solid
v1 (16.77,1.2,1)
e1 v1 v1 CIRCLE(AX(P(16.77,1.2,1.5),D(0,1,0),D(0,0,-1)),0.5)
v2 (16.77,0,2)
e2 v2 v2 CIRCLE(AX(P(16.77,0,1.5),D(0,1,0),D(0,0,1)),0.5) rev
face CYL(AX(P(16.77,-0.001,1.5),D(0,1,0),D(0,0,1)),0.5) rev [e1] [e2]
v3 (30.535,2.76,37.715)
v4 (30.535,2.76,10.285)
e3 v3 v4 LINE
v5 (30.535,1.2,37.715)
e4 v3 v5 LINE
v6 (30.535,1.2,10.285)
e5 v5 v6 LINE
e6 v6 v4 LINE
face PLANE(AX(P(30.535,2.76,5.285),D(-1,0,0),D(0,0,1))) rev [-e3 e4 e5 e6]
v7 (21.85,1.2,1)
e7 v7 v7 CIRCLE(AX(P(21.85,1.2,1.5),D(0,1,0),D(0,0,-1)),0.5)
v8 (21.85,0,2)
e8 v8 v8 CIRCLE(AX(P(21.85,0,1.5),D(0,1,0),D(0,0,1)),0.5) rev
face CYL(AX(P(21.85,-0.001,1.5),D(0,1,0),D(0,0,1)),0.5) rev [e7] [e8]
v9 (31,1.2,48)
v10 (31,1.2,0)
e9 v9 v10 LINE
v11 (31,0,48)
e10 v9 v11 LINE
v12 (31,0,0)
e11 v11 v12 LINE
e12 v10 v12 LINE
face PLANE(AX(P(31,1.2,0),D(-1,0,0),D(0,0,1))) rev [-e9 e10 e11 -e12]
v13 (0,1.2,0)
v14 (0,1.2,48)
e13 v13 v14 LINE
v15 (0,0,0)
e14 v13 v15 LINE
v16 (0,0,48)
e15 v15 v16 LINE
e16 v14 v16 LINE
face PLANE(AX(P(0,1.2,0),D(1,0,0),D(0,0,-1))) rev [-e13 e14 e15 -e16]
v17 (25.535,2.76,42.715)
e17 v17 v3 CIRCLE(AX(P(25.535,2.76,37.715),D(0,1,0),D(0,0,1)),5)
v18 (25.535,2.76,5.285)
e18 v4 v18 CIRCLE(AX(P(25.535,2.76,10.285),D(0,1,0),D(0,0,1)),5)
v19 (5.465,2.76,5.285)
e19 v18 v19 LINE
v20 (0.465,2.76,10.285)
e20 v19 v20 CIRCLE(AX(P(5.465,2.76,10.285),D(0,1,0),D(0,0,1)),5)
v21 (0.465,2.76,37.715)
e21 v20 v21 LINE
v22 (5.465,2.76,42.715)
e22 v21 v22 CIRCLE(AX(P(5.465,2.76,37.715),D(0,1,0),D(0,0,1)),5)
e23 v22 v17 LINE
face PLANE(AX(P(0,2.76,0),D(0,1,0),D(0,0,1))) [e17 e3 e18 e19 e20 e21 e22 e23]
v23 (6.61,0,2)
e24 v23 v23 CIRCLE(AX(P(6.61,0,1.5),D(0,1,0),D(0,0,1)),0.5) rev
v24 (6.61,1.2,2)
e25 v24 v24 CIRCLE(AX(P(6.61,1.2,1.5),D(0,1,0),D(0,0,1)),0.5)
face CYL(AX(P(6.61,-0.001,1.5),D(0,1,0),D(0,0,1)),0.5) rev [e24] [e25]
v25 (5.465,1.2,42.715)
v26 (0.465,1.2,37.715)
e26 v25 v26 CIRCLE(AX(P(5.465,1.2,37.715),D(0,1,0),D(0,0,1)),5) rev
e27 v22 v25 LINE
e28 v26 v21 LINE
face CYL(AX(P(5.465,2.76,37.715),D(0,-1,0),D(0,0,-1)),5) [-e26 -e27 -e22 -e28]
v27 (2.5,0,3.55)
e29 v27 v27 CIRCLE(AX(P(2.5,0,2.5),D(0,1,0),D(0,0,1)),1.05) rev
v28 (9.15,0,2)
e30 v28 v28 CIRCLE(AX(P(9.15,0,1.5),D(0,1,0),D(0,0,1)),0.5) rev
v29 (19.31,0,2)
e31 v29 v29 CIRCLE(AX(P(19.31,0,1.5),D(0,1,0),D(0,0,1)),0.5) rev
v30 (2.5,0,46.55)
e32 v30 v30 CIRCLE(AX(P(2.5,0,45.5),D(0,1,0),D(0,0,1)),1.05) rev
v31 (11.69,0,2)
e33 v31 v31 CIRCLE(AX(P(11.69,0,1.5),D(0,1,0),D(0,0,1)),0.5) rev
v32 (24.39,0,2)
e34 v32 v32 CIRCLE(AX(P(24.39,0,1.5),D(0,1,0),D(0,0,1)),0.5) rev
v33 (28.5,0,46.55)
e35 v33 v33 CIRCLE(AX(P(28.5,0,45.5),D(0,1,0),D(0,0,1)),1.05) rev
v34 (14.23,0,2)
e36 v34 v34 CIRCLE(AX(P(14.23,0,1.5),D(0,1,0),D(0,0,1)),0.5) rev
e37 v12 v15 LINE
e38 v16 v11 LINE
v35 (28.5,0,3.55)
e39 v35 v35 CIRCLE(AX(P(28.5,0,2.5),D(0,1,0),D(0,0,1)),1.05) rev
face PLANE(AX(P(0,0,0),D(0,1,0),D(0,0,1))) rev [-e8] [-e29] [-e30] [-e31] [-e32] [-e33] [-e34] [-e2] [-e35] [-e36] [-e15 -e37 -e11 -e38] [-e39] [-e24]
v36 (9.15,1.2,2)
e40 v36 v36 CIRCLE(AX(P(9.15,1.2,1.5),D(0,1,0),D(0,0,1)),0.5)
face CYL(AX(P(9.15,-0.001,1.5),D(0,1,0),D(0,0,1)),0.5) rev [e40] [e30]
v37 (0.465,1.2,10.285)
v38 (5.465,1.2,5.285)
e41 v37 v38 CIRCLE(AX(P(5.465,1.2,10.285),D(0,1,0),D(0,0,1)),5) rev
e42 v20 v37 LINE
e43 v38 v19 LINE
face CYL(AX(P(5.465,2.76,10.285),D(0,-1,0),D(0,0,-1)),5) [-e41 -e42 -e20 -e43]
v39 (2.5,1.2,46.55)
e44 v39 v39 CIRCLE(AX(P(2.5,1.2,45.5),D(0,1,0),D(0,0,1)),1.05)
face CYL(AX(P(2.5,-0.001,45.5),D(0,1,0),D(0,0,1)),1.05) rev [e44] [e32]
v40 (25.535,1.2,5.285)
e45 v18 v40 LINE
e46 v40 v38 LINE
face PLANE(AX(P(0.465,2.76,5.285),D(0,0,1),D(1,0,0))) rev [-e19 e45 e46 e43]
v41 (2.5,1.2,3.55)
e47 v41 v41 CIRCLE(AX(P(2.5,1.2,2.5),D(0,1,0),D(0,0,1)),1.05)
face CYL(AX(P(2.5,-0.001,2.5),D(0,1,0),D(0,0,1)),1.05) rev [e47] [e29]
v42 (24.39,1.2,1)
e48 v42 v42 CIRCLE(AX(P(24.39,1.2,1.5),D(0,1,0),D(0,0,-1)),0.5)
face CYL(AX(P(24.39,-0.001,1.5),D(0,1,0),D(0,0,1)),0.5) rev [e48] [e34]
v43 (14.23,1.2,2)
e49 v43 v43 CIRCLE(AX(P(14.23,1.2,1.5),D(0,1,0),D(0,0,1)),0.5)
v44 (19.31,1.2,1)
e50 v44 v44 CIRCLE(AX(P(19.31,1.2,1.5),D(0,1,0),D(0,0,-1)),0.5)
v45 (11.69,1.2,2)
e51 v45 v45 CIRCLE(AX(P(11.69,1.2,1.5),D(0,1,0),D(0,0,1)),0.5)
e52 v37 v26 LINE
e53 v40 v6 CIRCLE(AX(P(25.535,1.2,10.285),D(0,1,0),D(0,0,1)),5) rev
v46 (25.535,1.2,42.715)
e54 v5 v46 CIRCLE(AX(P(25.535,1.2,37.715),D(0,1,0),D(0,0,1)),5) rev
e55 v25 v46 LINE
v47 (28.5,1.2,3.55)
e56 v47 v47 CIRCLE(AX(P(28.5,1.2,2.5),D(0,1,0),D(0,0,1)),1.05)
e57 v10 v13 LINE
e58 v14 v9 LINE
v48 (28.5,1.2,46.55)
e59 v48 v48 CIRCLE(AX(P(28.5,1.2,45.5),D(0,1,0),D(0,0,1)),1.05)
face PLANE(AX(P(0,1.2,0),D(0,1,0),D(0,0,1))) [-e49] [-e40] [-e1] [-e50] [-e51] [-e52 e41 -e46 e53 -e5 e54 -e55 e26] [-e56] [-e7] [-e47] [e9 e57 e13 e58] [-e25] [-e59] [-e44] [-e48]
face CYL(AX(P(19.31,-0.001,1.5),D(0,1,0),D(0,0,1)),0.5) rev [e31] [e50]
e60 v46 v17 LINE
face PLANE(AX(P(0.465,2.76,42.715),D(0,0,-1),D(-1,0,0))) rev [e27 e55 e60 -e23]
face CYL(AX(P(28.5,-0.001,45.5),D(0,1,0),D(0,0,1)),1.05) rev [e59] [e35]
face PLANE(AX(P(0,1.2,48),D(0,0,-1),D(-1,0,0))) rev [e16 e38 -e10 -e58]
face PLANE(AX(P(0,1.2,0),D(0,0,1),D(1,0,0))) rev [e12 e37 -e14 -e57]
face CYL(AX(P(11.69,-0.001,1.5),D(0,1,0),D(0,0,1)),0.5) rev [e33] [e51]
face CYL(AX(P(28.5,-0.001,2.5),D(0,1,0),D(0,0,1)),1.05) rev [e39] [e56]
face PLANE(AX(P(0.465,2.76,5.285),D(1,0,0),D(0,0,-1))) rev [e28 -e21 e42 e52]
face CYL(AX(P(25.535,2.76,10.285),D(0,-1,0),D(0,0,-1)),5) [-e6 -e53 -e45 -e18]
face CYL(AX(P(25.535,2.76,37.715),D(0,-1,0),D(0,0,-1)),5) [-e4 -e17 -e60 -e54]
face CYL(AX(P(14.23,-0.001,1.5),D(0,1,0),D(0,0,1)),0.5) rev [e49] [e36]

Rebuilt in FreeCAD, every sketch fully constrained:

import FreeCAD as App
import Part
import Sketcher
from FreeCAD import Vector


def edges_at(feature, points):
    """Names of the edges that pass closest to the given points."""
    edges = feature.Shape.Edges
    near = lambda p: min(range(len(edges)), key=lambda i: edges[i].distToShape(Part.Vertex(*p))[0])
    return sorted({f"Edge{near(p) + 1}" for p in points})

doc = App.newDocument("Part")
params = doc.addObject("Spreadsheet::Sheet", "Params")
for row, (alias, value) in enumerate([
    ("sketch1_width", "31 mm"),
    ("sketch1_height", "48 mm"),
    ("pad1_length", "1.2 mm"),
    ("sketch2_diameter", "2.1 mm"),
    ("sketch3_diameter", "2.1 mm"),
    ("sketch4_diameter", "2.1 mm"),
    ("sketch5_diameter", "2.1 mm"),
    ("sketch6_diameter", "1 mm"),
    ("sketch7_diameter", "1 mm"),
    ("sketch8_diameter", "1 mm"),
    ("sketch9_diameter", "1 mm"),
    ("sketch10_diameter", "1 mm"),
    ("sketch11_diameter", "1 mm"),
    ("sketch12_diameter", "1 mm"),
    ("sketch13_diameter", "1 mm"),
    ("sketch14_width", "30.07 mm"),
    ("sketch14_height", "37.43 mm"),
    ("pad2_length", "1.56 mm"),
    ("fillet_radius", "5 mm"),
], start=1):
    params.set(f"A{row}", alias)
    params.set(f"B{row}", "=" + value)
    params.setAlias(f"B{row}", alias)

body = doc.addObject("PartDesign::Body", "Body")

# Sketch on XZ plane
sketch1 = body.newObject("Sketcher::SketchObject", "Sketch")
sketch1.AttachmentSupport = (doc.getObject("XZ_Plane"), [""])
sketch1.MapMode = "FlatFace"
sketch1.addGeometry([
    Part.LineSegment(Vector(0, 0, 0), Vector(0, 48, 0)),
    Part.LineSegment(Vector(0, 48, 0), Vector(31, 48, 0)),
    Part.LineSegment(Vector(31, 48, 0), Vector(31, 0, 0)),
    Part.LineSegment(Vector(31, 0, 0), Vector(0, 0, 0)),
], False)
sketch1.addConstraint([
    Sketcher.Constraint("Coincident", 0, 2, 1, 1),
    Sketcher.Constraint("Coincident", 1, 2, 2, 1),
    Sketcher.Constraint("Coincident", 2, 2, 3, 1),
    Sketcher.Constraint("Coincident", 3, 2, 0, 1),
    Sketcher.Constraint("Vertical", 0),
    Sketcher.Constraint("Horizontal", 1),
    Sketcher.Constraint("Vertical", 2),
    Sketcher.Constraint("Horizontal", 3),
    Sketcher.Constraint("Coincident", 3, 2, -1, 1),
    Sketcher.Constraint("DistanceX", 1, 1, 1, 2, 31.0),
    Sketcher.Constraint("DistanceY", 0, 1, 0, 2, 48.0),
])
sketch1.setExpression("Constraints[9]", "Params.sketch1_width")
sketch1.setExpression("Constraints[10]", "Params.sketch1_height")
pad1 = body.newObject("PartDesign::Pad", "Pad")
pad1.Profile = sketch1
pad1.setExpression("Length", "Params.pad1_length")
pad1.Reversed = True

# Sketch on XZ plane
sketch2 = body.newObject("Sketcher::SketchObject", "Sketch001")
sketch2.AttachmentSupport = (doc.getObject("XZ_Plane"), [""])
sketch2.MapMode = "FlatFace"
sketch2.AttachmentOffset = App.Placement(Vector(0, 0, -1.2), App.Rotation())
sketch2.addGeometry(Part.Circle(Vector(2.5, 2.5, 0), Vector(0, 0, 1), 1.05), False)
sketch2.addConstraint([
    Sketcher.Constraint("Diameter", 0, 2.1),
    Sketcher.Constraint("DistanceX", -1, 1, 0, 3, 2.5),
    Sketcher.Constraint("DistanceY", -1, 1, 0, 3, 2.5),
])
sketch2.setExpression("Constraints[0]", "Params.sketch2_diameter")
pocket1 = body.newObject("PartDesign::Pocket", "Pocket")
pocket1.Profile = sketch2
pocket1.Type = "UpToFirst"
pocket1.Reversed = True

# Sketch on XZ plane
sketch3 = body.newObject("Sketcher::SketchObject", "Sketch002")
sketch3.AttachmentSupport = (doc.getObject("XZ_Plane"), [""])
sketch3.MapMode = "FlatFace"
sketch3.AttachmentOffset = App.Placement(Vector(0, 0, -1.2), App.Rotation())
sketch3.addGeometry(Part.Circle(Vector(28.5, 2.5, 0), Vector(0, 0, 1), 1.05), False)
sketch3.addConstraint([
    Sketcher.Constraint("Diameter", 0, 2.1),
    Sketcher.Constraint("DistanceX", -1, 1, 0, 3, 28.5),
    Sketcher.Constraint("DistanceY", -1, 1, 0, 3, 2.5),
])
sketch3.setExpression("Constraints[0]", "Params.sketch3_diameter")
pocket2 = body.newObject("PartDesign::Pocket", "Pocket001")
pocket2.Profile = sketch3
pocket2.Type = "UpToFirst"
pocket2.Reversed = True

# Sketch on XZ plane
sketch4 = body.newObject("Sketcher::SketchObject", "Sketch003")
sketch4.AttachmentSupport = (doc.getObject("XZ_Plane"), [""])
sketch4.MapMode = "FlatFace"
sketch4.AttachmentOffset = App.Placement(Vector(0, 0, -1.2), App.Rotation())
sketch4.addGeometry(Part.Circle(Vector(2.5, 45.5, 0), Vector(0, 0, 1), 1.05), False)
sketch4.addConstraint([
    Sketcher.Constraint("Diameter", 0, 2.1),
    Sketcher.Constraint("DistanceX", -1, 1, 0, 3, 2.5),
    Sketcher.Constraint("DistanceY", -1, 1, 0, 3, 45.5),
])
sketch4.setExpression("Constraints[0]", "Params.sketch4_diameter")
pocket3 = body.newObject("PartDesign::Pocket", "Pocket002")
pocket3.Profile = sketch4
pocket3.Type = "UpToFirst"
pocket3.Reversed = True

# Sketch on XZ plane
sketch5 = body.newObject("Sketcher::SketchObject", "Sketch004")
sketch5.AttachmentSupport = (doc.getObject("XZ_Plane"), [""])
sketch5.MapMode = "FlatFace"
sketch5.AttachmentOffset = App.Placement(Vector(0, 0, -1.2), App.Rotation())
sketch5.addGeometry(Part.Circle(Vector(28.5, 45.5, 0), Vector(0, 0, 1), 1.05), False)
sketch5.addConstraint([
    Sketcher.Constraint("Diameter", 0, 2.1),
    Sketcher.Constraint("DistanceX", -1, 1, 0, 3, 28.5),
    Sketcher.Constraint("DistanceY", -1, 1, 0, 3, 45.5),
])
sketch5.setExpression("Constraints[0]", "Params.sketch5_diameter")
pocket4 = body.newObject("PartDesign::Pocket", "Pocket003")
pocket4.Profile = sketch5
pocket4.Type = "UpToFirst"
pocket4.Reversed = True

# Sketch on XZ plane
sketch6 = body.newObject("Sketcher::SketchObject", "Sketch005")
sketch6.AttachmentSupport = (doc.getObject("XZ_Plane"), [""])
sketch6.MapMode = "FlatFace"
sketch6.AttachmentOffset = App.Placement(Vector(0, 0, -1.2), App.Rotation())
sketch6.addGeometry(Part.Circle(Vector(14.23, 1.5, 0), Vector(0, 0, 1), 0.5), False)
sketch6.addConstraint([
    Sketcher.Constraint("Diameter", 0, 1.0),
    Sketcher.Constraint("DistanceY", -1, 1, 0, 3, 1.5),
    Sketcher.Constraint("DistanceX", -1, 1, 0, 3, 14.23),
])
sketch6.setExpression("Constraints[0]", "Params.sketch6_diameter")
pocket5 = body.newObject("PartDesign::Pocket", "Pocket004")
pocket5.Profile = sketch6
pocket5.Type = "UpToFirst"
pocket5.Reversed = True

# Sketch on XZ plane
sketch7 = body.newObject("Sketcher::SketchObject", "Sketch006")
sketch7.AttachmentSupport = (doc.getObject("XZ_Plane"), [""])
sketch7.MapMode = "FlatFace"
sketch7.AttachmentOffset = App.Placement(Vector(0, 0, -1.2), App.Rotation())
sketch7.addGeometry(Part.Circle(Vector(11.69, 1.5, 0), Vector(0, 0, 1), 0.5), False)
sketch7.addConstraint([
    Sketcher.Constraint("Diameter", 0, 1.0),
    Sketcher.Constraint("DistanceY", -1, 1, 0, 3, 1.5),
    Sketcher.Constraint("DistanceX", -1, 1, 0, 3, 11.69),
])
sketch7.setExpression("Constraints[0]", "Params.sketch7_diameter")
pocket6 = body.newObject("PartDesign::Pocket", "Pocket005")
pocket6.Profile = sketch7
pocket6.Type = "UpToFirst"
pocket6.Reversed = True

# Sketch on XZ plane
sketch8 = body.newObject("Sketcher::SketchObject", "Sketch007")
sketch8.AttachmentSupport = (doc.getObject("XZ_Plane"), [""])
sketch8.MapMode = "FlatFace"
sketch8.AttachmentOffset = App.Placement(Vector(0, 0, -1.2), App.Rotation())
sketch8.addGeometry(Part.Circle(Vector(9.15, 1.5, 0), Vector(0, 0, 1), 0.5), False)
sketch8.addConstraint([
    Sketcher.Constraint("Diameter", 0, 1.0),
    Sketcher.Constraint("DistanceY", -1, 1, 0, 3, 1.5),
    Sketcher.Constraint("DistanceX", -1, 1, 0, 3, 9.15),
])
sketch8.setExpression("Constraints[0]", "Params.sketch8_diameter")
pocket7 = body.newObject("PartDesign::Pocket", "Pocket006")
pocket7.Profile = sketch8
pocket7.Type = "UpToFirst"
pocket7.Reversed = True

# Sketch on XZ plane
sketch9 = body.newObject("Sketcher::SketchObject", "Sketch008")
sketch9.AttachmentSupport = (doc.getObject("XZ_Plane"), [""])
sketch9.MapMode = "FlatFace"
sketch9.AttachmentOffset = App.Placement(Vector(0, 0, -1.2), App.Rotation())
sketch9.addGeometry(Part.Circle(Vector(6.61, 1.5, 0), Vector(0, 0, 1), 0.5), False)
sketch9.addConstraint([
    Sketcher.Constraint("Diameter", 0, 1.0),
    Sketcher.Constraint("DistanceY", -1, 1, 0, 3, 1.5),
    Sketcher.Constraint("DistanceX", -1, 1, 0, 3, 6.61),
])
sketch9.setExpression("Constraints[0]", "Params.sketch9_diameter")
pocket8 = body.newObject("PartDesign::Pocket", "Pocket007")
pocket8.Profile = sketch9
pocket8.Type = "UpToFirst"
pocket8.Reversed = True

# Sketch on XZ plane
sketch10 = body.newObject("Sketcher::SketchObject", "Sketch009")
sketch10.AttachmentSupport = (doc.getObject("XZ_Plane"), [""])
sketch10.MapMode = "FlatFace"
sketch10.AttachmentOffset = App.Placement(Vector(0, 0, -1.2), App.Rotation())
sketch10.addGeometry(Part.Circle(Vector(24.39, 1.5, 0), Vector(0, 0, 1), 0.5), False)
sketch10.addConstraint([
    Sketcher.Constraint("Diameter", 0, 1.0),
    Sketcher.Constraint("DistanceY", -1, 1, 0, 3, 1.5),
    Sketcher.Constraint("DistanceX", -1, 1, 0, 3, 24.39),
])
sketch10.setExpression("Constraints[0]", "Params.sketch10_diameter")
pocket9 = body.newObject("PartDesign::Pocket", "Pocket008")
pocket9.Profile = sketch10
pocket9.Type = "UpToFirst"
pocket9.Reversed = True

# Sketch on XZ plane
sketch11 = body.newObject("Sketcher::SketchObject", "Sketch010")
sketch11.AttachmentSupport = (doc.getObject("XZ_Plane"), [""])
sketch11.MapMode = "FlatFace"
sketch11.AttachmentOffset = App.Placement(Vector(0, 0, -1.2), App.Rotation())
sketch11.addGeometry(Part.Circle(Vector(21.85, 1.5, 0), Vector(0, 0, 1), 0.5), False)
sketch11.addConstraint([
    Sketcher.Constraint("Diameter", 0, 1.0),
    Sketcher.Constraint("DistanceY", -1, 1, 0, 3, 1.5),
    Sketcher.Constraint("DistanceX", -1, 1, 0, 3, 21.85),
])
sketch11.setExpression("Constraints[0]", "Params.sketch11_diameter")
pocket10 = body.newObject("PartDesign::Pocket", "Pocket009")
pocket10.Profile = sketch11
pocket10.Type = "UpToFirst"
pocket10.Reversed = True

# Sketch on XZ plane
sketch12 = body.newObject("Sketcher::SketchObject", "Sketch011")
sketch12.AttachmentSupport = (doc.getObject("XZ_Plane"), [""])
sketch12.MapMode = "FlatFace"
sketch12.AttachmentOffset = App.Placement(Vector(0, 0, -1.2), App.Rotation())
sketch12.addGeometry(Part.Circle(Vector(19.31, 1.5, 0), Vector(0, 0, 1), 0.5), False)
sketch12.addConstraint([
    Sketcher.Constraint("Diameter", 0, 1.0),
    Sketcher.Constraint("DistanceY", -1, 1, 0, 3, 1.5),
    Sketcher.Constraint("DistanceX", -1, 1, 0, 3, 19.31),
])
sketch12.setExpression("Constraints[0]", "Params.sketch12_diameter")
pocket11 = body.newObject("PartDesign::Pocket", "Pocket010")
pocket11.Profile = sketch12
pocket11.Type = "UpToFirst"
pocket11.Reversed = True

# Sketch on XZ plane
sketch13 = body.newObject("Sketcher::SketchObject", "Sketch012")
sketch13.AttachmentSupport = (doc.getObject("XZ_Plane"), [""])
sketch13.MapMode = "FlatFace"
sketch13.AttachmentOffset = App.Placement(Vector(0, 0, -1.2), App.Rotation())
sketch13.addGeometry(Part.Circle(Vector(16.77, 1.5, 0), Vector(0, 0, 1), 0.5), False)
sketch13.addConstraint([
    Sketcher.Constraint("Diameter", 0, 1.0),
    Sketcher.Constraint("DistanceY", -1, 1, 0, 3, 1.5),
    Sketcher.Constraint("DistanceX", -1, 1, 0, 3, 16.77),
])
sketch13.setExpression("Constraints[0]", "Params.sketch13_diameter")
pocket12 = body.newObject("PartDesign::Pocket", "Pocket011")
pocket12.Profile = sketch13
pocket12.Type = "UpToFirst"
pocket12.Reversed = True

# Sketch on XZ plane
sketch14 = body.newObject("Sketcher::SketchObject", "Sketch013")
sketch14.AttachmentSupport = (doc.getObject("XZ_Plane"), [""])
sketch14.MapMode = "FlatFace"
sketch14.AttachmentOffset = App.Placement(Vector(0, 0, -1.2), App.Rotation())
sketch14.addGeometry([
    Part.LineSegment(Vector(0.465, 5.285, 0), Vector(0.465, 42.715, 0)),
    Part.LineSegment(Vector(0.465, 42.715, 0), Vector(30.535, 42.715, 0)),
    Part.LineSegment(Vector(30.535, 42.715, 0), Vector(30.535, 5.285, 0)),
    Part.LineSegment(Vector(30.535, 5.285, 0), Vector(0.465, 5.285, 0)),
], False)
sketch14.addConstraint([
    Sketcher.Constraint("Coincident", 0, 2, 1, 1),
    Sketcher.Constraint("Coincident", 1, 2, 2, 1),
    Sketcher.Constraint("Coincident", 2, 2, 3, 1),
    Sketcher.Constraint("Coincident", 3, 2, 0, 1),
    Sketcher.Constraint("Vertical", 0),
    Sketcher.Constraint("Horizontal", 1),
    Sketcher.Constraint("Vertical", 2),
    Sketcher.Constraint("Horizontal", 3),
    Sketcher.Constraint("DistanceX", 1, 1, 1, 2, 30.07),
    Sketcher.Constraint("DistanceY", 0, 1, 0, 2, 37.43),
    Sketcher.Constraint("DistanceX", -1, 1, 0, 2, 0.465),
    Sketcher.Constraint("DistanceY", -1, 1, 0, 2, 42.715),
])
sketch14.setExpression("Constraints[8]", "Params.sketch14_width")
sketch14.setExpression("Constraints[9]", "Params.sketch14_height")
pad2 = body.newObject("PartDesign::Pad", "Pad001")
pad2.Profile = sketch14
pad2.setExpression("Length", "Params.pad2_length")
pad2.Reversed = True
doc.recompute()

fillet = body.newObject("PartDesign::Fillet", "Fillet")
fillet.Base = (pad2, edges_at(pad2, [
    (0.465, 1.98, 5.285),
    (0.465, 1.98, 42.715),
    (30.535, 1.98, 42.715),
    (30.535, 1.98, 5.285),
]))
fillet.setExpression("Radius", "Params.fillet_radius")

doc.recompute()
